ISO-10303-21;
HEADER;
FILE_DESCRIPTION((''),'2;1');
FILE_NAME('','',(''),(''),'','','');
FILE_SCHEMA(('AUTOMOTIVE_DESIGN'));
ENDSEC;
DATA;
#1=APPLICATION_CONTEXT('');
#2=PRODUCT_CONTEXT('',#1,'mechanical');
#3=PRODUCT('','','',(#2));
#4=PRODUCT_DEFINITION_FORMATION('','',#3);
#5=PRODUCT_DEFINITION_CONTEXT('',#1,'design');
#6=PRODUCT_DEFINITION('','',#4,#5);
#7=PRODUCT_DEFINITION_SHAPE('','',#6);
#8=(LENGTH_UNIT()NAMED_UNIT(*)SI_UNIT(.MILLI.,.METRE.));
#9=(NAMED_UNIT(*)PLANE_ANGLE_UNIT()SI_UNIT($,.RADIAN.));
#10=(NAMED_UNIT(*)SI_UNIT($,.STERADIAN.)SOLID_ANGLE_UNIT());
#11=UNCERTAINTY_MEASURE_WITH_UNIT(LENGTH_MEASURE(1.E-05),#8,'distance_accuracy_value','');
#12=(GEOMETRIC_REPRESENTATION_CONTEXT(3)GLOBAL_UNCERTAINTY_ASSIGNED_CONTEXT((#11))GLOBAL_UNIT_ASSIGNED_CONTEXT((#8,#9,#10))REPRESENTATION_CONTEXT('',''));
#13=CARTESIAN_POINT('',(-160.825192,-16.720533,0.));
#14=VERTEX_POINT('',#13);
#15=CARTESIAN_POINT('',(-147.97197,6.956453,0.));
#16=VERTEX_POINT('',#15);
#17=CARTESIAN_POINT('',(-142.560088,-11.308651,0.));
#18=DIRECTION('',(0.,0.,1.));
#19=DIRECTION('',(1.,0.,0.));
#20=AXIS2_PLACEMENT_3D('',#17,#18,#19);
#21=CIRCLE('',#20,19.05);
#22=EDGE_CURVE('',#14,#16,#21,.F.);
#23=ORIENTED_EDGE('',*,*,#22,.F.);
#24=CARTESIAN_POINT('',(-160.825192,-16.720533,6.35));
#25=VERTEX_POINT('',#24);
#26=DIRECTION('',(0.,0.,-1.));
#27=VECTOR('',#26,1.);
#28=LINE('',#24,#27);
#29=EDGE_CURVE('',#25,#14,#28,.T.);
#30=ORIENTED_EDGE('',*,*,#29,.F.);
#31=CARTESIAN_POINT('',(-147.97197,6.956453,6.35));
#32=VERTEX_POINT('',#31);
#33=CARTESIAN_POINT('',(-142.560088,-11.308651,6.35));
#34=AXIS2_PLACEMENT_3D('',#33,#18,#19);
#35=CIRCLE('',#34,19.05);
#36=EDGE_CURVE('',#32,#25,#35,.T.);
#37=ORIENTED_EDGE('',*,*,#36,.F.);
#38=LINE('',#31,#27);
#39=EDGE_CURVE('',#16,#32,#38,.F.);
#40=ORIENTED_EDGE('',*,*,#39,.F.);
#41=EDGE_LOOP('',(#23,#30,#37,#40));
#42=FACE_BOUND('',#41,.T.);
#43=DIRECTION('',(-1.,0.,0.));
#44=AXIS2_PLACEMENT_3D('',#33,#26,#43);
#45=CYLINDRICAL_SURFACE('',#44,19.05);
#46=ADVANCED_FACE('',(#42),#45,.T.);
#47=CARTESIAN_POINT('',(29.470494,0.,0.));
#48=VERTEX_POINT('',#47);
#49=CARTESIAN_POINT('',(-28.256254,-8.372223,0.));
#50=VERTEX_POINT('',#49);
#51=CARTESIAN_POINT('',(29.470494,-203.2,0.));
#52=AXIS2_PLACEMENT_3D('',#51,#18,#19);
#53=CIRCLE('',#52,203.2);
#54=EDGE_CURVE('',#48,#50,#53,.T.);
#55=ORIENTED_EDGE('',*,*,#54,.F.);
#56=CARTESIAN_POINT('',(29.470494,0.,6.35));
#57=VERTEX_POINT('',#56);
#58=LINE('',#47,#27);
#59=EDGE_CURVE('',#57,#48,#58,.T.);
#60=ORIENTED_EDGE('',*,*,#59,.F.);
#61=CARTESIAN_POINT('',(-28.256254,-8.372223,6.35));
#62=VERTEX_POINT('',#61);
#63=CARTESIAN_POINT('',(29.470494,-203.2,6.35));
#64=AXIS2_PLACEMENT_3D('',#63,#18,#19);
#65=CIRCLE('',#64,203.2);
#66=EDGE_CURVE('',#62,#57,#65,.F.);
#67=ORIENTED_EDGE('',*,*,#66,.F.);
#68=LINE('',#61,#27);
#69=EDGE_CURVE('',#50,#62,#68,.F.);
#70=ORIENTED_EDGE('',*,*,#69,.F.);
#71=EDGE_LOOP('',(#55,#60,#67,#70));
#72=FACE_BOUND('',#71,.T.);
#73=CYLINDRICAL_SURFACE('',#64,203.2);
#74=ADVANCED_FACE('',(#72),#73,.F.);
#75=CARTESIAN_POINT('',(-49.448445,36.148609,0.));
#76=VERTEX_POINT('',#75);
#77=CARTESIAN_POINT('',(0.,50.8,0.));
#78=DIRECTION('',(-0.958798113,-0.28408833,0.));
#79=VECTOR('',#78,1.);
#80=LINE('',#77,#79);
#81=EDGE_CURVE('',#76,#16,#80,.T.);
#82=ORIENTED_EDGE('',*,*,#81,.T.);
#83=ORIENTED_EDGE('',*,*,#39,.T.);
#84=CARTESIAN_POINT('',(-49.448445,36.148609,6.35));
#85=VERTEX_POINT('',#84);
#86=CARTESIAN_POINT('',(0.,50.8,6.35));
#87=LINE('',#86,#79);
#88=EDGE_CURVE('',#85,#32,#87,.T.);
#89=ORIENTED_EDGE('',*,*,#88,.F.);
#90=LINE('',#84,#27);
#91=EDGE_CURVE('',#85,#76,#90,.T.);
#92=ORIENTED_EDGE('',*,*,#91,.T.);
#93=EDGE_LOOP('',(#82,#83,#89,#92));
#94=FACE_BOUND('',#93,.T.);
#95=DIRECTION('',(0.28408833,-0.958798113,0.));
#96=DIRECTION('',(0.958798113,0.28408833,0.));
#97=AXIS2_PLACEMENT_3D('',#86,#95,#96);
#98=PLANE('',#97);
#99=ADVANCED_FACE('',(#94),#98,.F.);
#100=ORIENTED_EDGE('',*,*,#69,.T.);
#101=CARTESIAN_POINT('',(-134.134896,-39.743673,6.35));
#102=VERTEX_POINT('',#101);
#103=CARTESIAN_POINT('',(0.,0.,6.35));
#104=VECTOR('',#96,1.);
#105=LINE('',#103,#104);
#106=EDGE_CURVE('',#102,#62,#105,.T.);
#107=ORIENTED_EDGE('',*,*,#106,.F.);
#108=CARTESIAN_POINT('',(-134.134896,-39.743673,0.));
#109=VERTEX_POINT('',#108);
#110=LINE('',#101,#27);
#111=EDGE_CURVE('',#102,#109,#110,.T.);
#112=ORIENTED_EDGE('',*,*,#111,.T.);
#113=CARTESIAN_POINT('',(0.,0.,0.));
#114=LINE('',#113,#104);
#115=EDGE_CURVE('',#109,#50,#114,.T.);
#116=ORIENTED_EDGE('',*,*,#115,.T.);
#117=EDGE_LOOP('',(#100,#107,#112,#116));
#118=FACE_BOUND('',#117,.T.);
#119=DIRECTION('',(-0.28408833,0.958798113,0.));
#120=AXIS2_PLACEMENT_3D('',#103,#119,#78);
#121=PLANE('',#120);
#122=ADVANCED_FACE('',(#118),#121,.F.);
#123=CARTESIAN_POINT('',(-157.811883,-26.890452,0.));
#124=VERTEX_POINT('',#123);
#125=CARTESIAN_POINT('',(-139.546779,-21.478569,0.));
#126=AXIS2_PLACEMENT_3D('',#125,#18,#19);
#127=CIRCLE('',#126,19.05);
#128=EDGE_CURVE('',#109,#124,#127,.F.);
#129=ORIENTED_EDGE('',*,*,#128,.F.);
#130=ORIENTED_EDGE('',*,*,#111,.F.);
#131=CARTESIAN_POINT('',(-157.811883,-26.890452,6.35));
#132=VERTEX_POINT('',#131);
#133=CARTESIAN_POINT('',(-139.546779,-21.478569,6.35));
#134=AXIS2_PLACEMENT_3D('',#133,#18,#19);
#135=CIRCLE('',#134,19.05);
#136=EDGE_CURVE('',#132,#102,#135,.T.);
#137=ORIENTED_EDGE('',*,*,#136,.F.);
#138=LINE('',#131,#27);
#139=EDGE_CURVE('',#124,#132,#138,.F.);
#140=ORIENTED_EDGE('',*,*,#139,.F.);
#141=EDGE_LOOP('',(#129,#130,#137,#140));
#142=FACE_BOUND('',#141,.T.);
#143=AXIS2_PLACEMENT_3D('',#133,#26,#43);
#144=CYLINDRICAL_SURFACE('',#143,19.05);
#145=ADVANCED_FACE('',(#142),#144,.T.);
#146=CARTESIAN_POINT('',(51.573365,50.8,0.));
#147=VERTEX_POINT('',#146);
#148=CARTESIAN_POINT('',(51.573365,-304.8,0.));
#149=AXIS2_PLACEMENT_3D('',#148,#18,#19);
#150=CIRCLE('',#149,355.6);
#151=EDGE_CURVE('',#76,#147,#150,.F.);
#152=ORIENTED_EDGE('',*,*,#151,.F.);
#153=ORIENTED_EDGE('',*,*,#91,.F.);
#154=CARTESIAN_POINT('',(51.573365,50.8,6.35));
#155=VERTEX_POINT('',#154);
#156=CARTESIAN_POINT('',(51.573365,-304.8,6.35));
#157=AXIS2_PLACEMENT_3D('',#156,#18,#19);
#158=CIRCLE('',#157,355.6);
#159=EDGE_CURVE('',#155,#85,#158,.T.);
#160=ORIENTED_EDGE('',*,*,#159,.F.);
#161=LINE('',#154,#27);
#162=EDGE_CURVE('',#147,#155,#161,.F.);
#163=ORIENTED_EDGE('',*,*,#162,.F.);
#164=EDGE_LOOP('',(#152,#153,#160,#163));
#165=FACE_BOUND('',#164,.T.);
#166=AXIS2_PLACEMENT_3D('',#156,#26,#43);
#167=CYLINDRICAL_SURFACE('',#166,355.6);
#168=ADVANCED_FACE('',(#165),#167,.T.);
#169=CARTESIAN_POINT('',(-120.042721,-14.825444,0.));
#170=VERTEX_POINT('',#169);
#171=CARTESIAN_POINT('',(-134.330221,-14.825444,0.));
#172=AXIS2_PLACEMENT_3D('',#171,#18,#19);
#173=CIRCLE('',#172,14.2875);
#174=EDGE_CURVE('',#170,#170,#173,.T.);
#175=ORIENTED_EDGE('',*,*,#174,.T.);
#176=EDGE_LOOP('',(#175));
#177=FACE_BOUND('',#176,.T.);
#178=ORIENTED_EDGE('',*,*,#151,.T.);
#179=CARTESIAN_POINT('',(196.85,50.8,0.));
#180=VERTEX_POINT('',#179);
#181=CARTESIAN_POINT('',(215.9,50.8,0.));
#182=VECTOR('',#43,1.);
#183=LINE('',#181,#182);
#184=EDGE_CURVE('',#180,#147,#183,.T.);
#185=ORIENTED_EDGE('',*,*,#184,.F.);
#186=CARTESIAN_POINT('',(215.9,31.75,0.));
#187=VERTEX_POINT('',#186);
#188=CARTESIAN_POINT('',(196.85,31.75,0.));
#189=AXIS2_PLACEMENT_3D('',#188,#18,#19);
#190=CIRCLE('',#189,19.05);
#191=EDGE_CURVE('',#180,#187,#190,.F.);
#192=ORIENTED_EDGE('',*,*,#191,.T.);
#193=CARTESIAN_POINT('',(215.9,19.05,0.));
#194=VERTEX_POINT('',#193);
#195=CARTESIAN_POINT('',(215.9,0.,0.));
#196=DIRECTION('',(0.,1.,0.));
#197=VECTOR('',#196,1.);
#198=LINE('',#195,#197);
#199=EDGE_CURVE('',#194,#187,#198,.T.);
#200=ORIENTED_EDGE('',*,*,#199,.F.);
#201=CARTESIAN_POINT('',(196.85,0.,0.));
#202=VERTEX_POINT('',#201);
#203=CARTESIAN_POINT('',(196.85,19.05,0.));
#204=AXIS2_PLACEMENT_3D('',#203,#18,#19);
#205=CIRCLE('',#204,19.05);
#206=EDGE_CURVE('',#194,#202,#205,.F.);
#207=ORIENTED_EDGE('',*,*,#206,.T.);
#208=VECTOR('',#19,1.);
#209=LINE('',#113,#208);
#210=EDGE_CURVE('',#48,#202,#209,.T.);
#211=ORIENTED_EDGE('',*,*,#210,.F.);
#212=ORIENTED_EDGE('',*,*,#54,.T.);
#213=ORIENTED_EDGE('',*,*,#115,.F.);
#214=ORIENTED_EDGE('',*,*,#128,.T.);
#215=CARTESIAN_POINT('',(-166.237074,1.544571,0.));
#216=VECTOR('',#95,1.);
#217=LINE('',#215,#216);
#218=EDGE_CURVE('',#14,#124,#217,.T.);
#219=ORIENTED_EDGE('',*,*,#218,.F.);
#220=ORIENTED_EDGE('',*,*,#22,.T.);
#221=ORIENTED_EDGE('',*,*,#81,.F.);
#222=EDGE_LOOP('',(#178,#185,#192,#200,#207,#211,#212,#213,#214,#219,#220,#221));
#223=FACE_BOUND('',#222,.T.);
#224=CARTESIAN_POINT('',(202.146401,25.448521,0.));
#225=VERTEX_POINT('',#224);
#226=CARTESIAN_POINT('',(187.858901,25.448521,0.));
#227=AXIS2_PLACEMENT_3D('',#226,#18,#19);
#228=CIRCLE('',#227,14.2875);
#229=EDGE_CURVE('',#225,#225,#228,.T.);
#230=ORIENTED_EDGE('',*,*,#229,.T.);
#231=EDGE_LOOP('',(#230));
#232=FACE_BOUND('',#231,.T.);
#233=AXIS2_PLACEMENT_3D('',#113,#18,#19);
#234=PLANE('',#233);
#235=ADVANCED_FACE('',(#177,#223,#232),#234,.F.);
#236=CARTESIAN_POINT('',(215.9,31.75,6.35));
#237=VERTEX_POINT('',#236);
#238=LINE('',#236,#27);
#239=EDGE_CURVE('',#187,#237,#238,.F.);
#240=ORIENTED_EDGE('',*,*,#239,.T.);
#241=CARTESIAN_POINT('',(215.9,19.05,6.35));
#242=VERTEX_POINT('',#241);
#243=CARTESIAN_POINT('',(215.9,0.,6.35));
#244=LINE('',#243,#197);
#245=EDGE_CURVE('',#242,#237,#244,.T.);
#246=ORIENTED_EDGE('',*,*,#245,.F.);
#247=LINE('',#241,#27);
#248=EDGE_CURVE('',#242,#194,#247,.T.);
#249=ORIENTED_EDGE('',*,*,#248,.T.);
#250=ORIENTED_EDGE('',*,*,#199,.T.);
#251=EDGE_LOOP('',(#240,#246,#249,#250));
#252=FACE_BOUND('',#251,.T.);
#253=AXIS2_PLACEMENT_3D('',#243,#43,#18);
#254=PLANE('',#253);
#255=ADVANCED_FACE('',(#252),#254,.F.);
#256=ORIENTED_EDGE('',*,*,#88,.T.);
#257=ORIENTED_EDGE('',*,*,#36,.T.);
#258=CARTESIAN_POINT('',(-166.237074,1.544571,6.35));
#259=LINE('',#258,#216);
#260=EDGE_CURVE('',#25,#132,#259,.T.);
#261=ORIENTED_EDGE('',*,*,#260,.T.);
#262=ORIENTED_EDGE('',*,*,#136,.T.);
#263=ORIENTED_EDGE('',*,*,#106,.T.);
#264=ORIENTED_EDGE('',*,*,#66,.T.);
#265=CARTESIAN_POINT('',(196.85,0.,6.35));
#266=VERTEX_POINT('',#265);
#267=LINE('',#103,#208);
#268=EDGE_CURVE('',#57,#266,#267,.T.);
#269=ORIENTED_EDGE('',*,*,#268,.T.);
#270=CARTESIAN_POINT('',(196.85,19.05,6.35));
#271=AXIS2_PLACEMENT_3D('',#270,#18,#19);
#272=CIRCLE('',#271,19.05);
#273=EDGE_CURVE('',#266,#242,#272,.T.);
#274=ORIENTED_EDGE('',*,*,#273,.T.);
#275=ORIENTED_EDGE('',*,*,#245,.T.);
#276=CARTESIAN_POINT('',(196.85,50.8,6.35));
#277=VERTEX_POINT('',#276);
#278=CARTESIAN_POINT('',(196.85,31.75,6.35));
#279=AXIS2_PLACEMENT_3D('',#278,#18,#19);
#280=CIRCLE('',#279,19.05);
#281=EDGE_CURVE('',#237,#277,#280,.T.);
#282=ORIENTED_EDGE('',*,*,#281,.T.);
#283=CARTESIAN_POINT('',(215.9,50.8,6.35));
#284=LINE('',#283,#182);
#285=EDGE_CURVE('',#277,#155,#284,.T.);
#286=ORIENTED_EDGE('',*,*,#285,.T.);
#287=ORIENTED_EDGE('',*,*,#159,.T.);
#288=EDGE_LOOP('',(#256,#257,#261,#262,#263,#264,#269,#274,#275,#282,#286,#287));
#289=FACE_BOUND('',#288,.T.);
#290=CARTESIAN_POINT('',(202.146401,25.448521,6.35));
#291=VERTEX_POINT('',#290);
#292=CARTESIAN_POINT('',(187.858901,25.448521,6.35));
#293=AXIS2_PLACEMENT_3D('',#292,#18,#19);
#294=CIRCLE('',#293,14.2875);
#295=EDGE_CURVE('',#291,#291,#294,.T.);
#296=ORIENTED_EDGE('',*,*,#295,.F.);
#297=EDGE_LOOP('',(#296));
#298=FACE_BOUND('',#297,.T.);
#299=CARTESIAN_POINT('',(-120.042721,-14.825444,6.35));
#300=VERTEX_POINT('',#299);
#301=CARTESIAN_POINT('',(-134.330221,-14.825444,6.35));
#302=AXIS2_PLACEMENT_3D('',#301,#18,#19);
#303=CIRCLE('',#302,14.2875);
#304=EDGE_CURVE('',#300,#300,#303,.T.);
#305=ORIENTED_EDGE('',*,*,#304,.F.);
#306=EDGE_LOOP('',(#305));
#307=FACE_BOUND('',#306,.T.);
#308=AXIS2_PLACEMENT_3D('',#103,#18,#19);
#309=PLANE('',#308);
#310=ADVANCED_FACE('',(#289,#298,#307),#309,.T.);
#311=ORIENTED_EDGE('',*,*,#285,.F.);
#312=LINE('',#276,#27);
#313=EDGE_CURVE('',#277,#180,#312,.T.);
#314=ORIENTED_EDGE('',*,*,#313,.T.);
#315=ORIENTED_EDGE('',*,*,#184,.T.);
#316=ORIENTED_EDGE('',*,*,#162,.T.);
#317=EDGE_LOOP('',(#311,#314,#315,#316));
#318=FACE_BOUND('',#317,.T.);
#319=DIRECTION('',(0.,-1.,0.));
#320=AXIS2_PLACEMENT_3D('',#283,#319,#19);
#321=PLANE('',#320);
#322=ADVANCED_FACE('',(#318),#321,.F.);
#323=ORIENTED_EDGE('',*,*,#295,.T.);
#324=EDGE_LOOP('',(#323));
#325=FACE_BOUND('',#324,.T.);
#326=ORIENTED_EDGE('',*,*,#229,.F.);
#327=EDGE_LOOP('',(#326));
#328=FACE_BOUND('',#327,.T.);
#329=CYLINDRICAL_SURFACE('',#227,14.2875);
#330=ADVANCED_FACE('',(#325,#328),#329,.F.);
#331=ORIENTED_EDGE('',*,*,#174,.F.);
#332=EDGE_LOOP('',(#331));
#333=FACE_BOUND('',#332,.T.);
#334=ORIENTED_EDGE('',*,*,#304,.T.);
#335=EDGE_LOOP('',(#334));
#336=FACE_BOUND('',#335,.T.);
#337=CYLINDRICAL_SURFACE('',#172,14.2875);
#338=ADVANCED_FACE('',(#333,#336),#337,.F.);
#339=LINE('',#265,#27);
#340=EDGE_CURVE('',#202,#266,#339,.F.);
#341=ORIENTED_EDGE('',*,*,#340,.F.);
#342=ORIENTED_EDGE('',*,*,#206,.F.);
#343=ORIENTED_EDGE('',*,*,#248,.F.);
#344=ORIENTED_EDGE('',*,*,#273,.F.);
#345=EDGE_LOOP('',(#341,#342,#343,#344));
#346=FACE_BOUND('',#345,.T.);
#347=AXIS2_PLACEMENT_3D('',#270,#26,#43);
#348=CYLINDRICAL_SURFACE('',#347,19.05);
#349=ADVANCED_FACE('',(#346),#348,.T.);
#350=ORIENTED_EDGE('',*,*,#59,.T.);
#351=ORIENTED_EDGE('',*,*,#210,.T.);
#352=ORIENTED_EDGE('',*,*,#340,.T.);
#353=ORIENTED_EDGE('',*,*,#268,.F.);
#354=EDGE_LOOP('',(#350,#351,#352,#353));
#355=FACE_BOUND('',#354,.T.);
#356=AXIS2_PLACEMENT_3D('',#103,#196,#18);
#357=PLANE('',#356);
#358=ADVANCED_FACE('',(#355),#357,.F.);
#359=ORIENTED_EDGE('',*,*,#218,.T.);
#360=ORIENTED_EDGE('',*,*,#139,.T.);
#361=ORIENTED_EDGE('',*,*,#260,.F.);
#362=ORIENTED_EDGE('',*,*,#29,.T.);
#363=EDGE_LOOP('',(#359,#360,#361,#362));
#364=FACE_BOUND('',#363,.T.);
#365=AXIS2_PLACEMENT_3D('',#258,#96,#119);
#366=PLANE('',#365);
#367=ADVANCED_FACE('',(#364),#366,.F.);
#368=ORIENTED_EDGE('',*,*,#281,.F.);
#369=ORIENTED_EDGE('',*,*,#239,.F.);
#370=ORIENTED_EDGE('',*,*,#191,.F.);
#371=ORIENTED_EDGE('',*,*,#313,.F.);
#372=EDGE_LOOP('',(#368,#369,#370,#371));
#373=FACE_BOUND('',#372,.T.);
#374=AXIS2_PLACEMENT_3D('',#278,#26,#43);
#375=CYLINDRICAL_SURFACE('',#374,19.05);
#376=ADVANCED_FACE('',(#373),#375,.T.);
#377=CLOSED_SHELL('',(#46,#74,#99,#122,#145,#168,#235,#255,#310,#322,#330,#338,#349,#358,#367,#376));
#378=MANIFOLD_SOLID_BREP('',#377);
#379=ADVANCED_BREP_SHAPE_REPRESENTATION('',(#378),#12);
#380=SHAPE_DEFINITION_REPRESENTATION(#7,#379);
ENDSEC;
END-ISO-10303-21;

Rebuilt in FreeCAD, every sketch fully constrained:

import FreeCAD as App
import Part
import Sketcher
Q = App.Units.Quantity


def edges_at(feature, points):
    """Names of the edges that pass closest to the given points."""
    edges = feature.Shape.Edges
    near = lambda p: min(range(len(edges)), key=lambda i: edges[i].distToShape(Part.Vertex(*p))[0])
    return sorted({f"Edge{near(p) + 1}" for p in points})


def add_polygon(sketch, points):
    """Adds a closed chain of lines whose ends are joined by coincident constraints."""
    first, n = sketch.GeometryCount, len(points)
    for a, b in zip(points, points[1:] + points[:1]):
        sketch.addGeometry(Part.LineSegment(App.Vector(*a, 0), App.Vector(*b, 0)), False)
    for i in range(n):
        sketch.addConstraint(Sketcher.Constraint("Coincident", first + i, 2, first + (i + 1) % n, 1))

doc = App.newDocument("Part")
body = doc.addObject("PartDesign::Body", "Body")

sketch1 = doc.addObject("Sketcher::SketchObject", "Sketch")
body.addObject(sketch1)
sketch1.AttachmentSupport = (doc.XY_Plane, [""])
sketch1.MapMode = "FlatFace"
add_polygon(sketch1, [(0, 0), (215.9, 0), (215.9, 50.8), (0, 50.8), (-166.237074, 1.544571), (-152.4, -45.155556)])
sketch1.addConstraint(Sketcher.Constraint("Horizontal", 0))
sketch1.addConstraint(Sketcher.Constraint("Vertical", 1))
sketch1.addConstraint(Sketcher.Constraint("Horizontal", 2))
sketch1.addConstraint(Sketcher.Constraint("Coincident", 5, 2, -1, 1))
sketch1.addConstraint(Sketcher.Constraint("PointOnObject", 2, 2, -2))
sketch1.addConstraint(Sketcher.Constraint("Perpendicular", 3, 4))
sketch1.addConstraint(Sketcher.Constraint("Perpendicular", 4, 5))
sketch1.addConstraint(Sketcher.Constraint("DistanceY", 1, 1, 1, 2, Q("2 in")))
sketch1.addConstraint(Sketcher.Constraint("DistanceX", 0, 1, 0, 2, Q("8.5 in")))
sketch1.addConstraint(Sketcher.Constraint("DistanceX", 4, 2, -1, 1, Q("6 in")))
sketch1.addConstraint(Sketcher.Constraint("Distance", 5, Q("158.948999 mm")))
pad1 = doc.addObject("PartDesign::Pad", "Pad")
body.addObject(pad1)
pad1.Profile = sketch1
pad1.Length = Q("0.25 in")
doc.recompute()

fillet = doc.addObject("PartDesign::Fillet", "Fillet")
body.addObject(fillet)
fillet.Base = (pad1, edges_at(pad1, [(0, 0, 3.175)]))
fillet.Radius = Q("8 in")
doc.recompute()

fillet2 = doc.addObject("PartDesign::Fillet", "Fillet001")
body.addObject(fillet2)
fillet2.Base = (fillet, edges_at(fillet, [(0, 50.8, 3.175)]))
fillet2.Radius = Q("14 in")
doc.recompute()

fillet3 = doc.addObject("PartDesign::Fillet", "Fillet002")
body.addObject(fillet3)
fillet3.Base = (fillet2, edges_at(fillet2, [(-166.237, 1.545, 3.175)]))
fillet3.Radius = Q("0.75 in")
doc.recompute()

fillet4 = doc.addObject("PartDesign::Fillet", "Fillet003")
body.addObject(fillet4)
fillet4.Base = (fillet3, edges_at(fillet3, [(-152.4, -45.156, 3.175)]))
fillet4.Radius = Q("0.75 in")
doc.recompute()

fillet5 = doc.addObject("PartDesign::Fillet", "Fillet004")
body.addObject(fillet5)
fillet5.Base = (fillet4, edges_at(fillet4, [(215.9, 50.8, 3.175)]))
fillet5.Radius = Q("0.75 in")
doc.recompute()

fillet6 = doc.addObject("PartDesign::Fillet", "Fillet005")
body.addObject(fillet6)
fillet6.Base = (fillet5, edges_at(fillet5, [(215.9, 0, 3.175)]))
fillet6.Radius = Q("0.75 in")

sketch2 = doc.addObject("Sketcher::SketchObject", "Sketch001")
body.addObject(sketch2)
sketch2.AttachmentSupport = (doc.XY_Plane, [""])
sketch2.MapMode = "FlatFace"
sketch2.AttachmentOffset = App.Placement(App.Vector(0, 0, 0.25 * 25.4), App.Rotation())
sketch2.addGeometry(Part.Circle(App.Vector(-134.330221, -14.825444, 0), App.Vector(0, 0, 1), 14.2875), False)
sketch2.addGeometry(Part.Circle(App.Vector(187.858901, 25.448521, 0), App.Vector(0, 0, 1), 14.2875), False)
sketch2.addConstraint(Sketcher.Constraint("Equal", 0, 1))
sketch2.addConstraint(Sketcher.Constraint("Diameter", 0, Q("1.125 in")))
sketch2.addConstraint(Sketcher.Constraint("DistanceX", -1, 1, 1, 3, Q("187.858901 mm")))
sketch2.addConstraint(Sketcher.Constraint("DistanceX", 0, 3, -1, 1, Q("134.330221 mm")))
sketch2.addConstraint(Sketcher.Constraint("DistanceY", -1, 1, 1, 3, Q("25.448521 mm")))
sketch2.addConstraint(Sketcher.Constraint("DistanceY", 0, 3, -1, 1, Q("14.825444 mm")))
pocket1 = doc.addObject("PartDesign::Pocket", "Pocket")
body.addObject(pocket1)
pocket1.Profile = sketch2
pocket1.Length = Q("0.25 in")

doc.recompute()
